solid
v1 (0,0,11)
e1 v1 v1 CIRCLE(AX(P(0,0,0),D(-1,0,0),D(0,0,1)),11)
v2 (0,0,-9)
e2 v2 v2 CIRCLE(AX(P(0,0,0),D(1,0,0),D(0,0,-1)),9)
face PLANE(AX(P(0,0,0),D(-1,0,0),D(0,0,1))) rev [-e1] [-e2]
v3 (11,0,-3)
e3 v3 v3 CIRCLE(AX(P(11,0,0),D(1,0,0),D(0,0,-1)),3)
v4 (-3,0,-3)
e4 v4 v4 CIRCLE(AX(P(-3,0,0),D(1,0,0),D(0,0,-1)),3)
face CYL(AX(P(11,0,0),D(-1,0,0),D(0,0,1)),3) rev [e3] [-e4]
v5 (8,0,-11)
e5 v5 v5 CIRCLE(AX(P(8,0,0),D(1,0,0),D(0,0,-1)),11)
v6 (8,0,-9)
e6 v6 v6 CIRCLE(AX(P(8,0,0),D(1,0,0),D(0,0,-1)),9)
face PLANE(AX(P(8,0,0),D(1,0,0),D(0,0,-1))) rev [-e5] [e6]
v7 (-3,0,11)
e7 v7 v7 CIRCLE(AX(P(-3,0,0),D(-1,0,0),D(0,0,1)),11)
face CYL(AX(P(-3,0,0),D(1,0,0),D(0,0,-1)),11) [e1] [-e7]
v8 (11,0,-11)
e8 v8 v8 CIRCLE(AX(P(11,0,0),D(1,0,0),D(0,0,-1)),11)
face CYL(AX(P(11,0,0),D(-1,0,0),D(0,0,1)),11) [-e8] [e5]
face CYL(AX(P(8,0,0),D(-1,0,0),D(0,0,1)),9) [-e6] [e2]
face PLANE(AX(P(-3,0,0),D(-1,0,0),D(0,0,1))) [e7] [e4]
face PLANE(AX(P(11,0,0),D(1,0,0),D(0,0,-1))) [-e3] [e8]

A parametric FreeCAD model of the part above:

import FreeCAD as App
import Part
import Sketcher
from FreeCAD import Vector

doc = App.newDocument("Part")
params = doc.addObject("Spreadsheet::Sheet", "Params")
for row, (alias, value) in enumerate([
    ("sketch1_diameter", "18 mm"),
    ("pad1_length", "8 mm"),
    ("sketch2_diameter", "22 mm"),
    ("pad2_length", "3 mm"),
    ("sketch3_diameter", "22 mm"),
    ("pad3_length", "3 mm"),
    ("sketch4_diameter", "6 mm"),
], start=1):
    params.set(f"A{row}", alias)
    params.set(f"B{row}", "=" + value)
    params.setAlias(f"B{row}", alias)

body = doc.addObject("PartDesign::Body", "Body")

# Sketch on YZ plane
sketch1 = body.newObject("Sketcher::SketchObject", "Sketch")
sketch1.AttachmentSupport = (doc.getObject("YZ_Plane"), [""])
sketch1.MapMode = "FlatFace"
sketch1.addGeometry(Part.Circle(Vector(0, 0, 0), Vector(0, 0, 1), 9), False)
sketch1.addConstraint(Sketcher.Constraint("Coincident", 0, 3, -1, 1))
sketch1.addConstraint(Sketcher.Constraint("Diameter", 0, 18.0))
sketch1.setExpression("Constraints[1]", "Params.sketch1_diameter")
pad1 = body.newObject("PartDesign::Pad", "Pad")
pad1.Profile = sketch1
pad1.setExpression("Length", "Params.pad1_length")

# Sketch on YZ plane
sketch2 = body.newObject("Sketcher::SketchObject", "Sketch001")
sketch2.AttachmentSupport = (doc.getObject("YZ_Plane"), [""])
sketch2.MapMode = "FlatFace"
sketch2.AttachmentOffset = App.Placement(Vector(0, 0, 8), App.Rotation())
sketch2.addGeometry(Part.Circle(Vector(0, 0, 0), Vector(0, 0, 1), 11), False)
sketch2.addConstraint(Sketcher.Constraint("Coincident", 0, 3, -1, 1))
sketch2.addConstraint(Sketcher.Constraint("Diameter", 0, 22.0))
sketch2.setExpression("Constraints[1]", "Params.sketch2_diameter")
pad2 = body.newObject("PartDesign::Pad", "Pad001")
pad2.Profile = sketch2
pad2.setExpression("Length", "Params.pad2_length")

# Sketch on YZ plane
sketch3 = body.newObject("Sketcher::SketchObject", "Sketch002")
sketch3.AttachmentSupport = (doc.getObject("YZ_Plane"), [""])
sketch3.MapMode = "FlatFace"
sketch3.addGeometry(Part.Circle(Vector(0, 0, 0), Vector(0, 0, 1), 11), False)
sketch3.addConstraint(Sketcher.Constraint("Coincident", 0, 3, -1, 1))
sketch3.addConstraint(Sketcher.Constraint("Diameter", 0, 22.0))
sketch3.setExpression("Constraints[1]", "Params.sketch3_diameter")
pad3 = body.newObject("PartDesign::Pad", "Pad002")
pad3.Profile = sketch3
pad3.setExpression("Length", "Params.pad3_length")
pad3.Reversed = True

# Sketch on YZ plane
sketch4 = body.newObject("Sketcher::SketchObject", "Sketch003")
sketch4.AttachmentSupport = (doc.getObject("YZ_Plane"), [""])
sketch4.MapMode = "FlatFace"
sketch4.AttachmentOffset = App.Placement(Vector(0, 0, 8), App.Rotation())
sketch4.addGeometry(Part.Circle(Vector(0, 0, 0), Vector(0, 0, 1), 3), False)
sketch4.addConstraint(Sketcher.Constraint("Coincident", 0, 3, -1, 1))
sketch4.addConstraint(Sketcher.Constraint("Diameter", 0, 6.0))
sketch4.setExpression("Constraints[1]", "Params.sketch4_diameter")
pocket1 = body.newObject("PartDesign::Pocket", "Pocket")
pocket1.Profile = sketch4
pocket1.Type = "ThroughAll"
pocket1.Midplane = True

doc.recompute()
